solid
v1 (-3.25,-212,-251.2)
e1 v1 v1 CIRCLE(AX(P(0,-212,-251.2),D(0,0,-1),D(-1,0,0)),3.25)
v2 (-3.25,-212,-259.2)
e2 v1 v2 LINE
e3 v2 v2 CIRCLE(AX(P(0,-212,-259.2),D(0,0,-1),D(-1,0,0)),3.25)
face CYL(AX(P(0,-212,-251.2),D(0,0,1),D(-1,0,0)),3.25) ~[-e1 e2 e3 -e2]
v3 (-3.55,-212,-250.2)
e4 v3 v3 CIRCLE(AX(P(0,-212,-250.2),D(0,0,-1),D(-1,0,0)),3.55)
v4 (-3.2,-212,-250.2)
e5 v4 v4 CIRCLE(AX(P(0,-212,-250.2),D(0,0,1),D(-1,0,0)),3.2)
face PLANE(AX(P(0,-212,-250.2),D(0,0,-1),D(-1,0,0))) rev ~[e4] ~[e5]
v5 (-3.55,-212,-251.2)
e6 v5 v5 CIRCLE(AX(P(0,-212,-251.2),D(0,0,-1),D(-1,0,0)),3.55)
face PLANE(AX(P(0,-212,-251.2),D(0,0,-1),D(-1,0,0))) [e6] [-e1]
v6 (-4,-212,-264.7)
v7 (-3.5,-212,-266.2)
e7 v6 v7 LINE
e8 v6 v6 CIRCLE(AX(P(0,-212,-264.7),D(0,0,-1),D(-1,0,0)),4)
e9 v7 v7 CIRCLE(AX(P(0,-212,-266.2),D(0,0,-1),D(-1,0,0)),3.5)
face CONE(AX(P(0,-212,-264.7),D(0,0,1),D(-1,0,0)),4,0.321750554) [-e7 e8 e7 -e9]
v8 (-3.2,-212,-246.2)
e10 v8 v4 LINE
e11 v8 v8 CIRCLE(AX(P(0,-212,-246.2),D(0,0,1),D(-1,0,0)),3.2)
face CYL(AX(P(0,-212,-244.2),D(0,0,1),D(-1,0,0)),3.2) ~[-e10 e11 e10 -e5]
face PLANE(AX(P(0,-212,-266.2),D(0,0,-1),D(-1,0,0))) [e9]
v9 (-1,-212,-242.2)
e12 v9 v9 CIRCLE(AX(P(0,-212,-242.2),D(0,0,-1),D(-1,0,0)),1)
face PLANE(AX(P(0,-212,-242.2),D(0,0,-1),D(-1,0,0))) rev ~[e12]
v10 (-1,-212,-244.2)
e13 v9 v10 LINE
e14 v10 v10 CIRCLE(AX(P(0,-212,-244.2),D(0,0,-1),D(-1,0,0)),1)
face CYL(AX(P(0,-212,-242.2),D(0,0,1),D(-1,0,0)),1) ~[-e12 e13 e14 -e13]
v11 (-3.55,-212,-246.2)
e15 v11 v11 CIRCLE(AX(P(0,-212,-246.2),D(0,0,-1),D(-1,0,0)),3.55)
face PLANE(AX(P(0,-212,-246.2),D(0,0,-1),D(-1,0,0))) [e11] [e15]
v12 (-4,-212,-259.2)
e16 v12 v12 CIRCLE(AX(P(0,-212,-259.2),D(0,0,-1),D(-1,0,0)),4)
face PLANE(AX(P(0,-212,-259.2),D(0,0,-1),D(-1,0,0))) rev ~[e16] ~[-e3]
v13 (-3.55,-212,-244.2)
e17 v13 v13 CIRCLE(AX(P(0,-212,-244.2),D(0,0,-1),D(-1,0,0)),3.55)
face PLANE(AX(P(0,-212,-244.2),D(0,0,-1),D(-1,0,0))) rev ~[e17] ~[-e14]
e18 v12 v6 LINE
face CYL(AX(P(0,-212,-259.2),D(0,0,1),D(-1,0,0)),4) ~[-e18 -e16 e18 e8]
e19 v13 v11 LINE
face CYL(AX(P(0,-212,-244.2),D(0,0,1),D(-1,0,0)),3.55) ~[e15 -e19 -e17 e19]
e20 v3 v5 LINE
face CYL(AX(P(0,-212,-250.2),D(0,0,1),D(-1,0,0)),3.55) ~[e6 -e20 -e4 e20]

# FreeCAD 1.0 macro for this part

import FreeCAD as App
import Part
import Sketcher
Q = App.Units.Quantity


def add_polygon(sketch, points):
    """Adds a closed chain of lines whose ends are joined by coincident constraints."""
    first, n = sketch.GeometryCount, len(points)
    for a, b in zip(points, points[1:] + points[:1]):
        sketch.addGeometry(Part.LineSegment(App.Vector(*a, 0), App.Vector(*b, 0)), False)
    for i in range(n):
        sketch.addConstraint(Sketcher.Constraint("Coincident", first + i, 2, first + (i + 1) % n, 1))

doc = App.newDocument("Part")
params = doc.addObject("Spreadsheet::Sheet", "Params")
for row, (alias, value) in enumerate([
    ("sketch1_diameter", "6.4 mm"),
    ("pad1_length", "22 mm"),
    ("sketch2_diameter", "7.1 mm"),
    ("pad2_length", "2 mm"),
    ("sketch3_diameter", "7.1 mm"),
    ("pad3_length", "1 mm"),
    ("sketch4_diameter", "6.5 mm"),
    ("pad4_length", "8 mm"),
    ("sketch5_diameter", "8 mm"),
    ("pad5_length", "5.5 mm"),
    ("sketch6_width", "4 mm"),
    ("sketch6_width2", "3.5 mm"),
    ("sketch6_height", "1.5 mm"),
    ("revolution_angle", "360 deg"),
    ("sketch7_diameter", "2 mm"),
    ("pad6_length", "2 mm"),
], start=1):
    params.set(f"A{row}", alias)
    params.set(f"B{row}", "=" + value)
    params.setAlias(f"B{row}", alias)

body = doc.addObject("PartDesign::Body", "Body")

sketch1 = doc.addObject("Sketcher::SketchObject", "Sketch")
body.addObject(sketch1)
sketch1.AttachmentSupport = (doc.XY_Plane, [""])
sketch1.MapMode = "FlatFace"
sketch1.AttachmentOffset = App.Placement(App.Vector(0, 0, 5), App.Rotation())
sketch1.addGeometry(Part.Circle(App.Vector(0, 0, 0), App.Vector(0, 0, 1), 3.2), False)
sketch1.addConstraint([
    Sketcher.Constraint("Coincident", 0, 3, -1, 1),
    Sketcher.Constraint("Diameter", 0, Q("6.4 mm")),
])
sketch1.setExpression("Constraints[1]", "Params.sketch1_diameter")
pad1 = doc.addObject("PartDesign::Pad", "Pad")
body.addObject(pad1)
pad1.Profile = sketch1
pad1.setExpression("Length", "Params.pad1_length")
body2 = doc.addObject("PartDesign::Body", "Body001")

sketch2 = doc.addObject("Sketcher::SketchObject", "Sketch001")
body2.addObject(sketch2)
sketch2.AttachmentSupport = (doc.getObject("XY_Plane001"), [""])
sketch2.MapMode = "FlatFace"
sketch2.AttachmentOffset = App.Placement(App.Vector(0, 0, 5), App.Rotation())
sketch2.addGeometry(Part.Circle(App.Vector(0, 0, 0), App.Vector(0, 0, 1), 3.5), False)
sketch2.addConstraint([
    Sketcher.Constraint("Coincident", 0, 3, -1, 1),
    Sketcher.Constraint("Diameter", 0, Q("7.1 mm")),
])
sketch2.setExpression("Constraints[1]", "Params.sketch2_diameter")
pad2 = doc.addObject("PartDesign::Pad", "Pad001")
body2.addObject(pad2)
pad2.Profile = sketch2
pad2.setExpression("Length", "Params.pad2_length")
body3 = doc.addObject("PartDesign::Body", "Body002")

sketch3 = doc.addObject("Sketcher::SketchObject", "Sketch002")
body3.addObject(sketch3)
sketch3.AttachmentSupport = (doc.getObject("XY_Plane002"), [""])
sketch3.MapMode = "FlatFace"
sketch3.AttachmentOffset = App.Placement(App.Vector(0, 0, 11), App.Rotation())
sketch3.addGeometry(Part.Circle(App.Vector(0, 0, 0), App.Vector(0, 0, 1), 3.5), False)
sketch3.addConstraint([
    Sketcher.Constraint("Coincident", 0, 3, -1, 1),
    Sketcher.Constraint("Diameter", 0, Q("7.1 mm")),
])
sketch3.setExpression("Constraints[1]", "Params.sketch3_diameter")
pad3 = doc.addObject("PartDesign::Pad", "Pad002")
body3.addObject(pad3)
pad3.Profile = sketch3
pad3.setExpression("Length", "Params.pad3_length")
body4 = doc.addObject("PartDesign::Body", "Body003")

sketch4 = doc.addObject("Sketcher::SketchObject", "Sketch003")
body4.addObject(sketch4)
sketch4.AttachmentSupport = (doc.getObject("XY_Plane003"), [""])
sketch4.MapMode = "FlatFace"
sketch4.AttachmentOffset = App.Placement(App.Vector(0, 0, 12), App.Rotation())
sketch4.addGeometry(Part.Circle(App.Vector(0, 0, 0), App.Vector(0, 0, 1), 3.2), False)
sketch4.addConstraint([
    Sketcher.Constraint("Coincident", 0, 3, -1, 1),
    Sketcher.Constraint("Diameter", 0, Q("6.5 mm")),
])
sketch4.setExpression("Constraints[1]", "Params.sketch4_diameter")
pad4 = doc.addObject("PartDesign::Pad", "Pad003")
body4.addObject(pad4)
pad4.Profile = sketch4
pad4.setExpression("Length", "Params.pad4_length")
body5 = doc.addObject("PartDesign::Body", "Body004")

sketch5 = doc.addObject("Sketcher::SketchObject", "Sketch004")
body5.addObject(sketch5)
sketch5.AttachmentSupport = (doc.getObject("XY_Plane004"), [""])
sketch5.MapMode = "FlatFace"
sketch5.AttachmentOffset = App.Placement(App.Vector(0, 0, 20), App.Rotation())
sketch5.addGeometry(Part.Circle(App.Vector(0, 0, 0), App.Vector(0, 0, 1), 4), False)
sketch5.addConstraint([
    Sketcher.Constraint("Coincident", 0, 3, -1, 1),
    Sketcher.Constraint("Diameter", 0, Q("8 mm")),
])
sketch5.setExpression("Constraints[1]", "Params.sketch5_diameter")
pad5 = doc.addObject("PartDesign::Pad", "Pad004")
body5.addObject(pad5)
pad5.Profile = sketch5
pad5.setExpression("Length", "Params.pad5_length")
body6 = doc.addObject("PartDesign::Body", "Body005")

sketch6 = doc.addObject("Sketcher::SketchObject", "Sketch005")
body6.addObject(sketch6)
sketch6.AttachmentSupport = (doc.getObject("XZ_Plane005"), [""])
sketch6.MapMode = "FlatFace"
add_polygon(sketch6, [(0, 25.5), (4, 25.5), (3.5, 27), (0, 27)])
sketch6.addConstraint([
    Sketcher.Constraint("Horizontal", 0),
    Sketcher.Constraint("Horizontal", 2),
    Sketcher.Constraint("Vertical", 3),
    Sketcher.Constraint("PointOnObject", 2, 2, -2),
    Sketcher.Constraint("DistanceX", 0, 1, 0, 2, Q("4 mm")),
    Sketcher.Constraint("DistanceX", 2, 2, 2, 1, Q("3.5 mm")),
    Sketcher.Constraint("DistanceY", 3, 2, 3, 1, Q("1.5 mm")),
    Sketcher.Constraint("DistanceY", -1, 1, 1, 2, Q("27 mm")),
])
sketch6.setExpression("Constraints[8]", "Params.sketch6_width")
sketch6.setExpression("Constraints[9]", "Params.sketch6_width2")
sketch6.setExpression("Constraints[10]", "Params.sketch6_height")
revolution = doc.addObject("PartDesign::Revolution", "Revolution")
body6.addObject(revolution)
revolution.Profile = sketch6
revolution.ReferenceAxis = (sketch6, ["V_Axis"])
revolution.setExpression("Angle", "Params.revolution_angle")
doc.recompute()

boolean = doc.addObject("PartDesign::Boolean", "Boolean")
body6.addObject(boolean)
boolean.Type = "Fuse"
boolean.addObjects([body])
doc.recompute()

boolean2 = doc.addObject("PartDesign::Boolean", "Boolean001")
body6.addObject(boolean2)
boolean2.Type = "Fuse"
boolean2.addObjects([body2])
doc.recompute()

boolean3 = doc.addObject("PartDesign::Boolean", "Boolean002")
body6.addObject(boolean3)
boolean3.Type = "Fuse"
boolean3.addObjects([body3])
doc.recompute()

boolean4 = doc.addObject("PartDesign::Boolean", "Boolean003")
body6.addObject(boolean4)
boolean4.Type = "Fuse"
boolean4.addObjects([body4])
doc.recompute()

boolean5 = doc.addObject("PartDesign::Boolean", "Boolean004")
body6.addObject(boolean5)
boolean5.Type = "Fuse"
boolean5.addObjects([body5])
body7 = doc.addObject("PartDesign::Body", "Body006")

sketch7 = doc.addObject("Sketcher::SketchObject", "Sketch006")
body7.addObject(sketch7)
sketch7.AttachmentSupport = (doc.getObject("XY_Plane006"), [""])
sketch7.MapMode = "FlatFace"
sketch7.AttachmentOffset = App.Placement(App.Vector(0, 0, 3), App.Rotation())
sketch7.addGeometry(Part.Circle(App.Vector(0, 0, 0), App.Vector(0, 0, 1), 1), False)
sketch7.addConstraint([
    Sketcher.Constraint("Coincident", 0, 3, -1, 1),
    Sketcher.Constraint("Diameter", 0, Q("2 mm")),
])
sketch7.setExpression("Constraints[1]", "Params.sketch7_diameter")
pad6 = doc.addObject("PartDesign::Pad", "Pad005")
body7.addObject(pad6)
pad6.Profile = sketch7
pad6.setExpression("Length", "Params.pad6_length")
doc.recompute()

boolean6 = doc.addObject("PartDesign::Boolean", "Boolean005")
body7.addObject(boolean6)
boolean6.Type = "Fuse"
boolean6.addObjects([body6])
body8 = doc.addObject("PartDesign::Body", "Body007")
doc.recompute()

body7.Placement = App.Placement(App.Vector(0, -212, -239.2), App.Rotation(App.Vector(0, 1, 0), 180))
boolean7 = doc.addObject("PartDesign::Boolean", "Boolean006")
body8.addObject(boolean7)
boolean7.Type = "Fuse"
boolean7.addObjects([body7])

doc.recompute()
